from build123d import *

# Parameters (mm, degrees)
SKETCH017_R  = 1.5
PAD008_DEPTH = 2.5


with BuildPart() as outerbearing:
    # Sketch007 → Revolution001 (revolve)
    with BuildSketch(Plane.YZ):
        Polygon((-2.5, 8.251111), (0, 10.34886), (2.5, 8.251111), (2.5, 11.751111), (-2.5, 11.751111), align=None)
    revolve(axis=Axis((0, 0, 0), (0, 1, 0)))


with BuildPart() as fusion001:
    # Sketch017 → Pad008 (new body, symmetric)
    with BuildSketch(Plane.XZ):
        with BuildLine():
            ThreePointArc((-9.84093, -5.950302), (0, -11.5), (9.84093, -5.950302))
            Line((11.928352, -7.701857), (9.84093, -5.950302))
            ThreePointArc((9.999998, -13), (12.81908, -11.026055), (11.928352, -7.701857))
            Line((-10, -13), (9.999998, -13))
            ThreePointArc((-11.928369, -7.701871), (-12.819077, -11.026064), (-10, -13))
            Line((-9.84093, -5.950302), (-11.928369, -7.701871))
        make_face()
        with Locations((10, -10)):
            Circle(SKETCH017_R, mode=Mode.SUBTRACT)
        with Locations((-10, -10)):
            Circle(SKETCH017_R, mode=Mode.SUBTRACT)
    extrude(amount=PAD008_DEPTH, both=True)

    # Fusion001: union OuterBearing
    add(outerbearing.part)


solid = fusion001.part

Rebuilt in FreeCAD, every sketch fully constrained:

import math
import FreeCAD as App
import Part
import Sketcher
Q = App.Units.Quantity


def add_polygon(sketch, points):
    """Adds a closed chain of lines whose ends are joined by coincident constraints."""
    first, n = sketch.GeometryCount, len(points)
    for a, b in zip(points, points[1:] + points[:1]):
        sketch.addGeometry(Part.LineSegment(App.Vector(*a, 0), App.Vector(*b, 0)), False)
    for i in range(n):
        sketch.addConstraint(Sketcher.Constraint("Coincident", first + i, 2, first + (i + 1) % n, 1))

doc = App.newDocument("Part")
body = doc.addObject("PartDesign::Body", "Body")

# Sketch on YZ plane
sketch1 = body.newObject("Sketcher::SketchObject", "Sketch")
sketch1.AttachmentSupport = (doc.getObject("YZ_Plane"), [""])
sketch1.MapMode = "FlatFace"
add_polygon(sketch1, [(-2.5, 8.251111), (0, 10.34886), (2.5, 8.251111), (2.5, 11.751111), (-2.5, 11.751111)])  # lines 0-4
sketch1.addConstraint(Sketcher.Constraint("Vertical", 2))
sketch1.addConstraint(Sketcher.Constraint("Horizontal", 3))
sketch1.addConstraint(Sketcher.Constraint("Vertical", 4))
sketch1.addConstraint(Sketcher.Constraint("Symmetric", 1, 2, 4, 2, -2))
sketch1.addConstraint(Sketcher.Constraint("PointOnObject", 0, 2, -2))
sketch1.addConstraint(Sketcher.Constraint("DistanceX", 3, 2, 3, 1, Q("5 mm")))
sketch1.addConstraint(Sketcher.Constraint("Angle", 0, Q("39.999999 deg")))
sketch1.addConstraint(Sketcher.Constraint("DistanceY", 2, 1, 2, 2, Q("3.5 mm")))
sketch1.addConstraint(Sketcher.Constraint("DistanceY", -1, 1, 0, 2, Q("10.34886 mm")))
revolution = body.newObject("PartDesign::Revolution", "Revolution")
revolution.Profile = sketch1
revolution.ReferenceAxis = (sketch1, ["H_Axis"])
revolution.Angle = 360
body2 = doc.addObject("PartDesign::Body", "Body001")

# Sketch on XZ plane
sketch2 = body2.newObject("Sketcher::SketchObject", "Sketch001")
sketch2.AttachmentSupport = (doc.getObject("XZ_Plane001"), [""])
sketch2.MapMode = "FlatFace"
sketch2.addGeometry(Part.ArcOfCircle(Part.Circle(App.Vector(0, 0, 0), App.Vector(0, 0, 1), 11.5), math.radians(-148.840815), math.radians(-31.159185)), False)
sketch2.addGeometry(Part.LineSegment(App.Vector(-9.84093, -5.950302, 0), App.Vector(-11.928369, -7.701871, 0)), False)
sketch2.addGeometry(Part.ArcOfCircle(Part.Circle(App.Vector(-10, -10, 0), App.Vector(0, 0, 1), 3), math.radians(130.000143), math.radians(270.000005)), False)
sketch2.addGeometry(Part.LineSegment(App.Vector(-10, -13, 0), App.Vector(9.999998, -13, 0)), False)
sketch2.addGeometry(Part.ArcOfCircle(Part.Circle(App.Vector(10, -10, 0), App.Vector(0, 0, 1), 3), math.radians(-90.000038), math.radians(50.000274)), False)
sketch2.addGeometry(Part.LineSegment(App.Vector(11.928352, -7.701857, 0), App.Vector(9.84093, -5.950302, 0)), False)
sketch2.addGeometry(Part.Circle(App.Vector(10, -10, 0), App.Vector(0, 0, 1), 1.5), False)
sketch2.addGeometry(Part.Circle(App.Vector(-10, -10, 0), App.Vector(0, 0, 1), 1.5), False)
sketch2.addConstraint(Sketcher.Constraint("Coincident", 0, 1, 1, 1))
sketch2.addConstraint(Sketcher.Constraint("Coincident", 1, 2, 2, 1))
sketch2.addConstraint(Sketcher.Constraint("Tangent", 2, 2, 3, 1))
sketch2.addConstraint(Sketcher.Constraint("Tangent", 3, 2, 4, 1))
sketch2.addConstraint(Sketcher.Constraint("Coincident", 4, 2, 5, 1))
sketch2.addConstraint(Sketcher.Constraint("Coincident", 5, 2, 0, 2))
sketch2.addConstraint(Sketcher.Constraint("Horizontal", 3))
sketch2.addConstraint(Sketcher.Constraint("Coincident", 0, 3, -1, 1))
sketch2.addConstraint(Sketcher.Constraint("Coincident", 6, 3, 4, 3))
sketch2.addConstraint(Sketcher.Constraint("Coincident", 7, 3, 2, 3))
sketch2.addConstraint(Sketcher.Constraint("Equal", 2, 4))
sketch2.addConstraint(Sketcher.Constraint("Equal", 6, 7))
sketch2.addConstraint(Sketcher.Constraint("Horizontal", 0, 1, 5, 2))
sketch2.addConstraint(Sketcher.Constraint("Diameter", 6, Q("3 mm")))
sketch2.addConstraint(Sketcher.Constraint("Radius", 2, Q("3 mm")))
sketch2.addConstraint(Sketcher.Constraint("Radius", 0, Q("11.5 mm")))
sketch2.addConstraint(Sketcher.Constraint("Angle", 1, Q("-140.000005 deg")))
sketch2.addConstraint(Sketcher.Constraint("Angle", 5, Q("140 deg")))
sketch2.addConstraint(Sketcher.Constraint("DistanceX", 2, 3, -1, 1, Q("10 mm")))
sketch2.addConstraint(Sketcher.Constraint("DistanceY", 2, 3, -1, 1, Q("10 mm")))
sketch2.addConstraint(Sketcher.Constraint("DistanceX", 1, 2, -1, 1, Q("11.928369 mm")))
sketch2.addConstraint(Sketcher.Constraint("DistanceX", -1, 1, 4, 2, Q("11.928352 mm")))
pad1 = body2.newObject("PartDesign::Pad", "Pad")
pad1.Profile = sketch2
pad1.Length = 5
pad1.Midplane = True
doc.recompute()

boolean = body2.newObject("PartDesign::Boolean", "Boolean")
boolean.Type = "Fuse"
boolean.addObjects([body])

doc.recompute()
